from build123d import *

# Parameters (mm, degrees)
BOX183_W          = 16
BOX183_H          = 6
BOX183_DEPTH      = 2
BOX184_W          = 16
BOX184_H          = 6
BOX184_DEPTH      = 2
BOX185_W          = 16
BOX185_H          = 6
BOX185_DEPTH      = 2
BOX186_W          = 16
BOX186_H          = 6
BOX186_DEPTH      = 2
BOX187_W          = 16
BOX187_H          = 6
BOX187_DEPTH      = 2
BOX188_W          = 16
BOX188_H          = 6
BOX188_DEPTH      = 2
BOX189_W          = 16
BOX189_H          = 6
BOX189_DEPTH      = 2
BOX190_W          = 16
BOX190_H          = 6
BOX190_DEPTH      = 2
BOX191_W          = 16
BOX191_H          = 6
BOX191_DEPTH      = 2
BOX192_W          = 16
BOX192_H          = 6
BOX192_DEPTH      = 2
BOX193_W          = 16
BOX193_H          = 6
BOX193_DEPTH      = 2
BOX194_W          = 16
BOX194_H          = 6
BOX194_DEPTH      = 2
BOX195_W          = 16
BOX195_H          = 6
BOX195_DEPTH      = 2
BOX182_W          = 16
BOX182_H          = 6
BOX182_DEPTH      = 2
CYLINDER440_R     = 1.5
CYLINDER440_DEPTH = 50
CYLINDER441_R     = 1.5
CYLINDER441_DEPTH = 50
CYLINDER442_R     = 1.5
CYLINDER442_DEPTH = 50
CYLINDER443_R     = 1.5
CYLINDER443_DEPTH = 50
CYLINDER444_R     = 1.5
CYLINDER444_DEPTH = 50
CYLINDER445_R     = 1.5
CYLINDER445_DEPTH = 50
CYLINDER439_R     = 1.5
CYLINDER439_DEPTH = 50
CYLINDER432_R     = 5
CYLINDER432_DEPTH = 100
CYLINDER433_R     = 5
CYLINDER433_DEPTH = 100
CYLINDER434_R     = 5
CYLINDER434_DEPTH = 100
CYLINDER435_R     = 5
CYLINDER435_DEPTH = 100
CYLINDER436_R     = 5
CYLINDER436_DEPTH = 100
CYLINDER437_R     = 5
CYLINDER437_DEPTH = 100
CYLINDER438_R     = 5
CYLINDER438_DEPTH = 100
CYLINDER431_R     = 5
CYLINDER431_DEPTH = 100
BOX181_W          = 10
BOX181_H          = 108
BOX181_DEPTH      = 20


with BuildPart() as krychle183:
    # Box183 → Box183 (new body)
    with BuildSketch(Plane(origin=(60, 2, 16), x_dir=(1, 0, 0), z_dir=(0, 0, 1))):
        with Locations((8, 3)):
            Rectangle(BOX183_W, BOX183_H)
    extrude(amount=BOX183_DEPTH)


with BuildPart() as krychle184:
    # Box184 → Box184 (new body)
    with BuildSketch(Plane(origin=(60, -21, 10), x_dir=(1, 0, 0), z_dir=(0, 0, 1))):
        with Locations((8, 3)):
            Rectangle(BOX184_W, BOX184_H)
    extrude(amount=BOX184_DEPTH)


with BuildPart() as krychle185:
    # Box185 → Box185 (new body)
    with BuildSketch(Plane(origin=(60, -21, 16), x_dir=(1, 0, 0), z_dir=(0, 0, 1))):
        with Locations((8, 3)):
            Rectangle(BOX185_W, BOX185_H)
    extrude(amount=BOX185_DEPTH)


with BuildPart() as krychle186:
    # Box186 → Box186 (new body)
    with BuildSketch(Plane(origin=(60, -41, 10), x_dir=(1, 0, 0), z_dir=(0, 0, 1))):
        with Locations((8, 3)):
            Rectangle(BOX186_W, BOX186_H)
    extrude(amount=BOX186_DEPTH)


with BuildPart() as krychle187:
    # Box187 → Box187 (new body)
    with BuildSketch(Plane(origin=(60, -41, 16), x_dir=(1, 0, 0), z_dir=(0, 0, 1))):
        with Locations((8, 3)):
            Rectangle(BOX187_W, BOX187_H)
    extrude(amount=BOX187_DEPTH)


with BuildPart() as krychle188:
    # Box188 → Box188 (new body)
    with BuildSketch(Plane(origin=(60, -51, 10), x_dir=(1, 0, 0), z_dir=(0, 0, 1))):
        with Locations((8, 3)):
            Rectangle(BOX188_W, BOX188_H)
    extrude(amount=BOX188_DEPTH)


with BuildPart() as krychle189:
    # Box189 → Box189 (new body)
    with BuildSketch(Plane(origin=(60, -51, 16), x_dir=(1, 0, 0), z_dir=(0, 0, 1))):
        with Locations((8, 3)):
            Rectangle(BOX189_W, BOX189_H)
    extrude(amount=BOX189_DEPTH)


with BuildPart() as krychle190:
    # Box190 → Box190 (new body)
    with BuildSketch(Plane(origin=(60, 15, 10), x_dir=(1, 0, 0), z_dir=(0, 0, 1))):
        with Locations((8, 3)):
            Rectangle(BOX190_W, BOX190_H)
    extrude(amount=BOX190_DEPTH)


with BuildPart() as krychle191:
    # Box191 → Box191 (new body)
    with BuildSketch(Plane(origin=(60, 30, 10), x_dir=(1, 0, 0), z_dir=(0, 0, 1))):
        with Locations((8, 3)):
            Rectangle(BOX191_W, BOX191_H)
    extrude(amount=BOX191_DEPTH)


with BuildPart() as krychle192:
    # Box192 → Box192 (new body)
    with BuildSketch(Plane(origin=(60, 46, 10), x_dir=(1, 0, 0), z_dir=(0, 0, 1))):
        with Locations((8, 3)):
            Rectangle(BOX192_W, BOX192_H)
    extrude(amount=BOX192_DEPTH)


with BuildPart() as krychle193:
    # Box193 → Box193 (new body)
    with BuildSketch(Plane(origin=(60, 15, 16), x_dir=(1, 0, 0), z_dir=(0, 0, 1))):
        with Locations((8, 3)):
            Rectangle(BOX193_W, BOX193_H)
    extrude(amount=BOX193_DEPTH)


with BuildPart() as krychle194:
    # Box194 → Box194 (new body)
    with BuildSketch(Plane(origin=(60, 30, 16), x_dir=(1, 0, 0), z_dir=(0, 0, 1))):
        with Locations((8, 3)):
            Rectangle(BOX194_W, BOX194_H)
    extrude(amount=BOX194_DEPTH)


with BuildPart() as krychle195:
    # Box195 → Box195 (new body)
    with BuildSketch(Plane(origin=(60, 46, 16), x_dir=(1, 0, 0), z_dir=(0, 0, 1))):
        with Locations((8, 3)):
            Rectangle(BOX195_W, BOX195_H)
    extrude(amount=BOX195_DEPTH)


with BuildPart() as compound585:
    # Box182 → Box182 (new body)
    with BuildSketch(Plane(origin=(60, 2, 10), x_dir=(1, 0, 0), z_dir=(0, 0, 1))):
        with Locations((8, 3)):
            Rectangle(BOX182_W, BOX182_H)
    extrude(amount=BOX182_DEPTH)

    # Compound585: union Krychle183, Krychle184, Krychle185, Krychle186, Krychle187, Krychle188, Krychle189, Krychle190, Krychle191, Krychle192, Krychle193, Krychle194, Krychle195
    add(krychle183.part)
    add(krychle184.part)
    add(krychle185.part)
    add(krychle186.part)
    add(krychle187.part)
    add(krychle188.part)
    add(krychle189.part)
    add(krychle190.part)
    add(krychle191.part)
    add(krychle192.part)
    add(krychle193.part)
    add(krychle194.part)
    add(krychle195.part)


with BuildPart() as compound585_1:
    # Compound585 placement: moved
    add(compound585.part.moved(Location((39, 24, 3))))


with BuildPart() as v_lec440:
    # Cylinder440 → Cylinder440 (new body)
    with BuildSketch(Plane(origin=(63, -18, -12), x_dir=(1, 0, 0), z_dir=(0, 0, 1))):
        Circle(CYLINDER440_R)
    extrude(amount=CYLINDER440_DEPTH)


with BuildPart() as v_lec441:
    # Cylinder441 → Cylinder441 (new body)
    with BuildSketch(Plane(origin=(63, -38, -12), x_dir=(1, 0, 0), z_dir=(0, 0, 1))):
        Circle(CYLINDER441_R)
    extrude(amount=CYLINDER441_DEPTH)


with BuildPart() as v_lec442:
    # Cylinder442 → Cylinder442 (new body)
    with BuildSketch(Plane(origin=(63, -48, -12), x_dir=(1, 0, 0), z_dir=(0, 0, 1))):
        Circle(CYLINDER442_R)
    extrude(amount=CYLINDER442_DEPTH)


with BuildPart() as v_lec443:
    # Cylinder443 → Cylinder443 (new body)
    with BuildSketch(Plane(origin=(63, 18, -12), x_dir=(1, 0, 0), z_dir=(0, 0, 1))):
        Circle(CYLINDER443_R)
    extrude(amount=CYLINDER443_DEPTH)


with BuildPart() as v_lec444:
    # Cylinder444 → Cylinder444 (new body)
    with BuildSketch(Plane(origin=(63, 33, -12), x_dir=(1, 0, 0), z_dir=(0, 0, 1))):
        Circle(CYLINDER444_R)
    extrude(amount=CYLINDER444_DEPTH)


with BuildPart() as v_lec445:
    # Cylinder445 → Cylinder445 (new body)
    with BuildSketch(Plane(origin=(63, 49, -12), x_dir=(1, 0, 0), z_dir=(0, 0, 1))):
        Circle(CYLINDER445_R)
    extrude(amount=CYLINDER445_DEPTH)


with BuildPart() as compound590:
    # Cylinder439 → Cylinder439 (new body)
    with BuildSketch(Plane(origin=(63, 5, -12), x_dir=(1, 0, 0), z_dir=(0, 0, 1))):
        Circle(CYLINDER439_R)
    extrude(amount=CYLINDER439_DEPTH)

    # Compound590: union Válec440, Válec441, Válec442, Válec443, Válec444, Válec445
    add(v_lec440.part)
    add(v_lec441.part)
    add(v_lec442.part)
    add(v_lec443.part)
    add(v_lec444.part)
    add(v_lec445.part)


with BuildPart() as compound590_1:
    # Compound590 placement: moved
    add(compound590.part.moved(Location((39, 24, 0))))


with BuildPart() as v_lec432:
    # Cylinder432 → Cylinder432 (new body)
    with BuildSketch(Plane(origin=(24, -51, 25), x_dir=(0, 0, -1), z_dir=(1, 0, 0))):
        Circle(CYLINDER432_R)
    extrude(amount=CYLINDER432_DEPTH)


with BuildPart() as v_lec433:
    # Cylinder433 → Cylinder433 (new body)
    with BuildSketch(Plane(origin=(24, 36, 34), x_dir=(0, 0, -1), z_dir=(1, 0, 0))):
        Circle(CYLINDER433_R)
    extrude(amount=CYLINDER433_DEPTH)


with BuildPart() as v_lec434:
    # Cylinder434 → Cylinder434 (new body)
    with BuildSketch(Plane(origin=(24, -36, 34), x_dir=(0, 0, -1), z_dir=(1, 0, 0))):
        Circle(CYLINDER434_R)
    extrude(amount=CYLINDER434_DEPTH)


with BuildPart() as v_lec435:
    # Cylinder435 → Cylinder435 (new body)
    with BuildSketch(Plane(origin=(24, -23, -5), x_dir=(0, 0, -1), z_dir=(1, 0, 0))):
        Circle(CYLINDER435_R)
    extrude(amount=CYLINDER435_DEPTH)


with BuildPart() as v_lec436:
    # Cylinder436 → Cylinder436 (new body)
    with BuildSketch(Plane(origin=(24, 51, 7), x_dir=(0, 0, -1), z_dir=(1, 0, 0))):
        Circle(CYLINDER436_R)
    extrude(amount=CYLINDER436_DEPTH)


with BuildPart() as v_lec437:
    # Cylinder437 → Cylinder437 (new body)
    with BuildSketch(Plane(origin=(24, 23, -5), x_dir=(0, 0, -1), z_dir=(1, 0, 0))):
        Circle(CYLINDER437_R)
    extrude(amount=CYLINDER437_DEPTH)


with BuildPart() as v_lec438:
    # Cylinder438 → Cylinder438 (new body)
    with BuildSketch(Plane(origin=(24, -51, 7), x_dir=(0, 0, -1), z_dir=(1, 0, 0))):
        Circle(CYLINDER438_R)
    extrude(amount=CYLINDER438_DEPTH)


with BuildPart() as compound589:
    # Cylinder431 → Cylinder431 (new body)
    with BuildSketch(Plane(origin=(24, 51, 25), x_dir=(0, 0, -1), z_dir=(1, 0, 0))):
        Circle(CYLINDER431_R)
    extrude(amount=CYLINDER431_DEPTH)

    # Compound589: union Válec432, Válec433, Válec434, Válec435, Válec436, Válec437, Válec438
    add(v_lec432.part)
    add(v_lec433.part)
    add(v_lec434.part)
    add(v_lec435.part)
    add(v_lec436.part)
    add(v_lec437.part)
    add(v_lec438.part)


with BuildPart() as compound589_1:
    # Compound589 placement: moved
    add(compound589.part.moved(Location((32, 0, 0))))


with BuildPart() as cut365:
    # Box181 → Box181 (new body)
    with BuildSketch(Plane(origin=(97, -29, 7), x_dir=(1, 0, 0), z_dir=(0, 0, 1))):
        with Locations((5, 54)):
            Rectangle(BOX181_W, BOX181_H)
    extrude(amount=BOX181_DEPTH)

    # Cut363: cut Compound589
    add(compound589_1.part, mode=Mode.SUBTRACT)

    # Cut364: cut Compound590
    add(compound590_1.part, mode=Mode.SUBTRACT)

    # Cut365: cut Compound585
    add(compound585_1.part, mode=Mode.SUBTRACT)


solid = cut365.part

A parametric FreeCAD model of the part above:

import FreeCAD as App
import Part
import Sketcher
Q = App.Units.Quantity

doc = App.newDocument("Part")
body = doc.addObject("PartDesign::Body", "Body")

sketch1 = body.newObject("Sketcher::SketchObject", "Sketch")
sketch1.AttachmentSupport = (doc.getObject("XY_Plane"), [""])
sketch1.MapMode = "FlatFace"
sketch1.AttachmentOffset = App.Placement(App.Vector(0, 0, 16), App.Rotation())
sketch1.addGeometry([
    Part.LineSegment(App.Vector(60, 8, 0), App.Vector(60, 2, 0)),
    Part.LineSegment(App.Vector(60, 2, 0), App.Vector(76, 2, 0)),
    Part.LineSegment(App.Vector(76, 2, 0), App.Vector(76, 8, 0)),
    Part.LineSegment(App.Vector(76, 8, 0), App.Vector(60, 8, 0)),
], False)
sketch1.addConstraint([
    Sketcher.Constraint("Coincident", 0, 2, 1, 1),
    Sketcher.Constraint("Coincident", 1, 2, 2, 1),
    Sketcher.Constraint("Coincident", 2, 2, 3, 1),
    Sketcher.Constraint("Coincident", 3, 2, 0, 1),
    Sketcher.Constraint("Vertical", 0),
    Sketcher.Constraint("Horizontal", 1),
    Sketcher.Constraint("Vertical", 2),
    Sketcher.Constraint("Horizontal", 3),
    Sketcher.Constraint("DistanceX", 1, 1, 1, 2, Q("16 mm")),
    Sketcher.Constraint("DistanceY", 0, 2, 0, 1, Q("6 mm")),
    Sketcher.Constraint("DistanceX", -1, 1, 0, 2, Q("60 mm")),
    Sketcher.Constraint("DistanceY", -1, 1, 0, 2, Q("2 mm")),
])
pad1 = body.newObject("PartDesign::Pad", "Pad")
pad1.Profile = sketch1
pad1.Length = 2
body2 = doc.addObject("PartDesign::Body", "Body001")

sketch2 = body2.newObject("Sketcher::SketchObject", "Sketch001")
sketch2.AttachmentSupport = (doc.getObject("XY_Plane001"), [""])
sketch2.MapMode = "FlatFace"
sketch2.AttachmentOffset = App.Placement(App.Vector(0, 0, 10), App.Rotation())
sketch2.addGeometry([
    Part.LineSegment(App.Vector(60, -15, 0), App.Vector(60, -21, 0)),
    Part.LineSegment(App.Vector(60, -21, 0), App.Vector(76, -21, 0)),
    Part.LineSegment(App.Vector(76, -21, 0), App.Vector(76, -15, 0)),
    Part.LineSegment(App.Vector(76, -15, 0), App.Vector(60, -15, 0)),
], False)
sketch2.addConstraint([
    Sketcher.Constraint("Coincident", 0, 2, 1, 1),
    Sketcher.Constraint("Coincident", 1, 2, 2, 1),
    Sketcher.Constraint("Coincident", 2, 2, 3, 1),
    Sketcher.Constraint("Coincident", 3, 2, 0, 1),
    Sketcher.Constraint("Vertical", 0),
    Sketcher.Constraint("Horizontal", 1),
    Sketcher.Constraint("Vertical", 2),
    Sketcher.Constraint("Horizontal", 3),
    Sketcher.Constraint("DistanceX", 1, 1, 1, 2, Q("16 mm")),
    Sketcher.Constraint("DistanceY", 0, 2, 0, 1, Q("6 mm")),
    Sketcher.Constraint("DistanceX", -1, 1, 0, 2, Q("60 mm")),
    Sketcher.Constraint("DistanceY", 0, 2, -1, 1, Q("21 mm")),
])
pad2 = body2.newObject("PartDesign::Pad", "Pad001")
pad2.Profile = sketch2
pad2.Length = 2
body3 = doc.addObject("PartDesign::Body", "Body002")

sketch3 = body3.newObject("Sketcher::SketchObject", "Sketch002")
sketch3.AttachmentSupport = (doc.getObject("XY_Plane002"), [""])
sketch3.MapMode = "FlatFace"
sketch3.AttachmentOffset = App.Placement(App.Vector(0, 0, 16), App.Rotation())
sketch3.addGeometry([
    Part.LineSegment(App.Vector(60, -15, 0), App.Vector(60, -21, 0)),
    Part.LineSegment(App.Vector(60, -21, 0), App.Vector(76, -21, 0)),
    Part.LineSegment(App.Vector(76, -21, 0), App.Vector(76, -15, 0)),
    Part.LineSegment(App.Vector(76, -15, 0), App.Vector(60, -15, 0)),
], False)
sketch3.addConstraint([
    Sketcher.Constraint("Coincident", 0, 2, 1, 1),
    Sketcher.Constraint("Coincident", 1, 2, 2, 1),
    Sketcher.Constraint("Coincident", 2, 2, 3, 1),
    Sketcher.Constraint("Coincident", 3, 2, 0, 1),
    Sketcher.Constraint("Vertical", 0),
    Sketcher.Constraint("Horizontal", 1),
    Sketcher.Constraint("Vertical", 2),
    Sketcher.Constraint("Horizontal", 3),
    Sketcher.Constraint("DistanceX", 1, 1, 1, 2, Q("16 mm")),
    Sketcher.Constraint("DistanceY", 0, 2, 0, 1, Q("6 mm")),
    Sketcher.Constraint("DistanceX", -1, 1, 0, 2, Q("60 mm")),
    Sketcher.Constraint("DistanceY", 0, 2, -1, 1, Q("21 mm")),
])
pad3 = body3.newObject("PartDesign::Pad", "Pad002")
pad3.Profile = sketch3
pad3.Length = 2
body4 = doc.addObject("PartDesign::Body", "Body003")

sketch4 = body4.newObject("Sketcher::SketchObject", "Sketch003")
sketch4.AttachmentSupport = (doc.getObject("XY_Plane003"), [""])
sketch4.MapMode = "FlatFace"
sketch4.AttachmentOffset = App.Placement(App.Vector(0, 0, 10), App.Rotation())
sketch4.addGeometry([
    Part.LineSegment(App.Vector(60, -35, 0), App.Vector(60, -41, 0)),
    Part.LineSegment(App.Vector(60, -41, 0), App.Vector(76, -41, 0)),
    Part.LineSegment(App.Vector(76, -41, 0), App.Vector(76, -35, 0)),
    Part.LineSegment(App.Vector(76, -35, 0), App.Vector(60, -35, 0)),
], False)
sketch4.addConstraint([
    Sketcher.Constraint("Coincident", 0, 2, 1, 1),
    Sketcher.Constraint("Coincident", 1, 2, 2, 1),
    Sketcher.Constraint("Coincident", 2, 2, 3, 1),
    Sketcher.Constraint("Coincident", 3, 2, 0, 1),
    Sketcher.Constraint("Vertical", 0),
    Sketcher.Constraint("Horizontal", 1),
    Sketcher.Constraint("Vertical", 2),
    Sketcher.Constraint("Horizontal", 3),
    Sketcher.Constraint("DistanceX", 1, 1, 1, 2, Q("16 mm")),
    Sketcher.Constraint("DistanceY", 0, 2, 0, 1, Q("6 mm")),
    Sketcher.Constraint("DistanceX", -1, 1, 0, 2, Q("60 mm")),
    Sketcher.Constraint("DistanceY", 0, 2, -1, 1, Q("41 mm")),
])
pad4 = body4.newObject("PartDesign::Pad", "Pad003")
pad4.Profile = sketch4
pad4.Length = 2
body5 = doc.addObject("PartDesign::Body", "Body004")

sketch5 = body5.newObject("Sketcher::SketchObject", "Sketch004")
sketch5.AttachmentSupport = (doc.getObject("XY_Plane004"), [""])
sketch5.MapMode = "FlatFace"
sketch5.AttachmentOffset = App.Placement(App.Vector(0, 0, 16), App.Rotation())
sketch5.addGeometry([
    Part.LineSegment(App.Vector(60, -35, 0), App.Vector(60, -41, 0)),
    Part.LineSegment(App.Vector(60, -41, 0), App.Vector(76, -41, 0)),
    Part.LineSegment(App.Vector(76, -41, 0), App.Vector(76, -35, 0)),
    Part.LineSegment(App.Vector(76, -35, 0), App.Vector(60, -35, 0)),
], False)
sketch5.addConstraint([
    Sketcher.Constraint("Coincident", 0, 2, 1, 1),
    Sketcher.Constraint("Coincident", 1, 2, 2, 1),
    Sketcher.Constraint("Coincident", 2, 2, 3, 1),
    Sketcher.Constraint("Coincident", 3, 2, 0, 1),
    Sketcher.Constraint("Vertical", 0),
    Sketcher.Constraint("Horizontal", 1),
    Sketcher.Constraint("Vertical", 2),
    Sketcher.Constraint("Horizontal", 3),
    Sketcher.Constraint("DistanceX", 1, 1, 1, 2, Q("16 mm")),
    Sketcher.Constraint("DistanceY", 0, 2, 0, 1, Q("6 mm")),
    Sketcher.Constraint("DistanceX", -1, 1, 0, 2, Q("60 mm")),
    Sketcher.Constraint("DistanceY", 0, 2, -1, 1, Q("41 mm")),
])
pad5 = body5.newObject("PartDesign::Pad", "Pad004")
pad5.Profile = sketch5
pad5.Length = 2
body6 = doc.addObject("PartDesign::Body", "Body005")

sketch6 = body6.newObject("Sketcher::SketchObject", "Sketch005")
sketch6.AttachmentSupport = (doc.getObject("XY_Plane005"), [""])
sketch6.MapMode = "FlatFace"
sketch6.AttachmentOffset = App.Placement(App.Vector(0, 0, 10), App.Rotation())
sketch6.addGeometry([
    Part.LineSegment(App.Vector(60, -45, 0), App.Vector(60, -51, 0)),
    Part.LineSegment(App.Vector(60, -51, 0), App.Vector(76, -51, 0)),
    Part.LineSegment(App.Vector(76, -51, 0), App.Vector(76, -45, 0)),
    Part.LineSegment(App.Vector(76, -45, 0), App.Vector(60, -45, 0)),
], False)
sketch6.addConstraint([
    Sketcher.Constraint("Coincident", 0, 2, 1, 1),
    Sketcher.Constraint("Coincident", 1, 2, 2, 1),
    Sketcher.Constraint("Coincident", 2, 2, 3, 1),
    Sketcher.Constraint("Coincident", 3, 2, 0, 1),
    Sketcher.Constraint("Vertical", 0),
    Sketcher.Constraint("Horizontal", 1),
    Sketcher.Constraint("Vertical", 2),
    Sketcher.Constraint("Horizontal", 3),
    Sketcher.Constraint("DistanceX", 1, 1, 1, 2, Q("16 mm")),
    Sketcher.Constraint("DistanceY", 0, 2, 0, 1, Q("6 mm")),
    Sketcher.Constraint("DistanceX", -1, 1, 0, 2, Q("60 mm")),
    Sketcher.Constraint("DistanceY", 0, 2, -1, 1, Q("51 mm")),
])
pad6 = body6.newObject("PartDesign::Pad", "Pad005")
pad6.Profile = sketch6
pad6.Length = 2
body7 = doc.addObject("PartDesign::Body", "Body006")

sketch7 = body7.newObject("Sketcher::SketchObject", "Sketch006")
sketch7.AttachmentSupport = (doc.getObject("XY_Plane006"), [""])
sketch7.MapMode = "FlatFace"
sketch7.AttachmentOffset = App.Placement(App.Vector(0, 0, 16), App.Rotation())
sketch7.addGeometry([
    Part.LineSegment(App.Vector(60, -45, 0), App.Vector(60, -51, 0)),
    Part.LineSegment(App.Vector(60, -51, 0), App.Vector(76, -51, 0)),
    Part.LineSegment(App.Vector(76, -51, 0), App.Vector(76, -45, 0)),
    Part.LineSegment(App.Vector(76, -45, 0), App.Vector(60, -45, 0)),
], False)
sketch7.addConstraint([
    Sketcher.Constraint("Coincident", 0, 2, 1, 1),
    Sketcher.Constraint("Coincident", 1, 2, 2, 1),
    Sketcher.Constraint("Coincident", 2, 2, 3, 1),
    Sketcher.Constraint("Coincident", 3, 2, 0, 1),
    Sketcher.Constraint("Vertical", 0),
    Sketcher.Constraint("Horizontal", 1),
    Sketcher.Constraint("Vertical", 2),
    Sketcher.Constraint("Horizontal", 3),
    Sketcher.Constraint("DistanceX", 1, 1, 1, 2, Q("16 mm")),
    Sketcher.Constraint("DistanceY", 0, 2, 0, 1, Q("6 mm")),
    Sketcher.Constraint("DistanceX", -1, 1, 0, 2, Q("60 mm")),
    Sketcher.Constraint("DistanceY", 0, 2, -1, 1, Q("51 mm")),
])
pad7 = body7.newObject("PartDesign::Pad", "Pad006")
pad7.Profile = sketch7
pad7.Length = 2
body8 = doc.addObject("PartDesign::Body", "Body007")

sketch8 = body8.newObject("Sketcher::SketchObject", "Sketch007")
sketch8.AttachmentSupport = (doc.getObject("XY_Plane007"), [""])
sketch8.MapMode = "FlatFace"
sketch8.AttachmentOffset = App.Placement(App.Vector(0, 0, 10), App.Rotation())
sketch8.addGeometry([
    Part.LineSegment(App.Vector(60, 21, 0), App.Vector(60, 15, 0)),
    Part.LineSegment(App.Vector(60, 15, 0), App.Vector(76, 15, 0)),
    Part.LineSegment(App.Vector(76, 15, 0), App.Vector(76, 21, 0)),
    Part.LineSegment(App.Vector(76, 21, 0), App.Vector(60, 21, 0)),
], False)
sketch8.addConstraint([
    Sketcher.Constraint("Coincident", 0, 2, 1, 1),
    Sketcher.Constraint("Coincident", 1, 2, 2, 1),
    Sketcher.Constraint("Coincident", 2, 2, 3, 1),
    Sketcher.Constraint("Coincident", 3, 2, 0, 1),
    Sketcher.Constraint("Vertical", 0),
    Sketcher.Constraint("Horizontal", 1),
    Sketcher.Constraint("Vertical", 2),
    Sketcher.Constraint("Horizontal", 3),
    Sketcher.Constraint("DistanceX", 1, 1, 1, 2, Q("16 mm")),
    Sketcher.Constraint("DistanceY", 0, 2, 0, 1, Q("6 mm")),
    Sketcher.Constraint("DistanceX", -1, 1, 0, 2, Q("60 mm")),
    Sketcher.Constraint("DistanceY", -1, 1, 0, 2, Q("15 mm")),
])
pad8 = body8.newObject("PartDesign::Pad", "Pad007")
pad8.Profile = sketch8
pad8.Length = 2
body9 = doc.addObject("PartDesign::Body", "Body008")

sketch9 = body9.newObject("Sketcher::SketchObject", "Sketch008")
sketch9.AttachmentSupport = (doc.getObject("XY_Plane008"), [""])
sketch9.MapMode = "FlatFace"
sketch9.AttachmentOffset = App.Placement(App.Vector(0, 0, 10), App.Rotation())
sketch9.addGeometry([
    Part.LineSegment(App.Vector(60, 36, 0), App.Vector(60, 30, 0)),
    Part.LineSegment(App.Vector(60, 30, 0), App.Vector(76, 30, 0)),
    Part.LineSegment(App.Vector(76, 30, 0), App.Vector(76, 36, 0)),
    Part.LineSegment(App.Vector(76, 36, 0), App.Vector(60, 36, 0)),
], False)
sketch9.addConstraint([
    Sketcher.Constraint("Coincident", 0, 2, 1, 1),
    Sketcher.Constraint("Coincident", 1, 2, 2, 1),
    Sketcher.Constraint("Coincident", 2, 2, 3, 1),
    Sketcher.Constraint("Coincident", 3, 2, 0, 1),
    Sketcher.Constraint("Vertical", 0),
    Sketcher.Constraint("Horizontal", 1),
    Sketcher.Constraint("Vertical", 2),
    Sketcher.Constraint("Horizontal", 3),
    Sketcher.Constraint("DistanceX", 1, 1, 1, 2, Q("16 mm")),
    Sketcher.Constraint("DistanceY", 0, 2, 0, 1, Q("6 mm")),
    Sketcher.Constraint("DistanceX", -1, 1, 0, 2, Q("60 mm")),
    Sketcher.Constraint("DistanceY", -1, 1, 0, 2, Q("30 mm")),
])
pad9 = body9.newObject("PartDesign::Pad", "Pad008")
pad9.Profile = sketch9
pad9.Length = 2
body10 = doc.addObject("PartDesign::Body", "Body009")

sketch10 = body10.newObject("Sketcher::SketchObject", "Sketch009")
sketch10.AttachmentSupport = (doc.getObject("XY_Plane009"), [""])
sketch10.MapMode = "FlatFace"
sketch10.AttachmentOffset = App.Placement(App.Vector(0, 0, 10), App.Rotation())
sketch10.addGeometry([
    Part.LineSegment(App.Vector(60, 52, 0), App.Vector(60, 46, 0)),
    Part.LineSegment(App.Vector(60, 46, 0), App.Vector(76, 46, 0)),
    Part.LineSegment(App.Vector(76, 46, 0), App.Vector(76, 52, 0)),
    Part.LineSegment(App.Vector(76, 52, 0), App.Vector(60, 52, 0)),
], False)
sketch10.addConstraint([
    Sketcher.Constraint("Coincident", 0, 2, 1, 1),
    Sketcher.Constraint("Coincident", 1, 2, 2, 1),
    Sketcher.Constraint("Coincident", 2, 2, 3, 1),
    Sketcher.Constraint("Coincident", 3, 2, 0, 1),
    Sketcher.Constraint("Vertical", 0),
    Sketcher.Constraint("Horizontal", 1),
    Sketcher.Constraint("Vertical", 2),
    Sketcher.Constraint("Horizontal", 3),
    Sketcher.Constraint("DistanceX", 1, 1, 1, 2, Q("16 mm")),
    Sketcher.Constraint("DistanceY", 0, 2, 0, 1, Q("6 mm")),
    Sketcher.Constraint("DistanceX", -1, 1, 0, 2, Q("60 mm")),
    Sketcher.Constraint("DistanceY", -1, 1, 0, 2, Q("46 mm")),
])
pad10 = body10.newObject("PartDesign::Pad", "Pad009")
pad10.Profile = sketch10
pad10.Length = 2
body11 = doc.addObject("PartDesign::Body", "Body010")

sketch11 = body11.newObject("Sketcher::SketchObject", "Sketch010")
sketch11.AttachmentSupport = (doc.getObject("XY_Plane010"), [""])
sketch11.MapMode = "FlatFace"
sketch11.AttachmentOffset = App.Placement(App.Vector(0, 0, 16), App.Rotation())
sketch11.addGeometry([
    Part.LineSegment(App.Vector(60, 21, 0), App.Vector(60, 15, 0)),
    Part.LineSegment(App.Vector(60, 15, 0), App.Vector(76, 15, 0)),
    Part.LineSegment(App.Vector(76, 15, 0), App.Vector(76, 21, 0)),
    Part.LineSegment(App.Vector(76, 21, 0), App.Vector(60, 21, 0)),
], False)
sketch11.addConstraint([
    Sketcher.Constraint("Coincident", 0, 2, 1, 1),
    Sketcher.Constraint("Coincident", 1, 2, 2, 1),
    Sketcher.Constraint("Coincident", 2, 2, 3, 1),
    Sketcher.Constraint("Coincident", 3, 2, 0, 1),
    Sketcher.Constraint("Vertical", 0),
    Sketcher.Constraint("Horizontal", 1),
    Sketcher.Constraint("Vertical", 2),
    Sketcher.Constraint("Horizontal", 3),
    Sketcher.Constraint("DistanceX", 1, 1, 1, 2, Q("16 mm")),
    Sketcher.Constraint("DistanceY", 0, 2, 0, 1, Q("6 mm")),
    Sketcher.Constraint("DistanceX", -1, 1, 0, 2, Q("60 mm")),
    Sketcher.Constraint("DistanceY", -1, 1, 0, 2, Q("15 mm")),
])
pad11 = body11.newObject("PartDesign::Pad", "Pad010")
pad11.Profile = sketch11
pad11.Length = 2
body12 = doc.addObject("PartDesign::Body", "Body011")

sketch12 = body12.newObject("Sketcher::SketchObject", "Sketch011")
sketch12.AttachmentSupport = (doc.getObject("XY_Plane011"), [""])
sketch12.MapMode = "FlatFace"
sketch12.AttachmentOffset = App.Placement(App.Vector(0, 0, 16), App.Rotation())
sketch12.addGeometry([
    Part.LineSegment(App.Vector(60, 36, 0), App.Vector(60, 30, 0)),
    Part.LineSegment(App.Vector(60, 30, 0), App.Vector(76, 30, 0)),
    Part.LineSegment(App.Vector(76, 30, 0), App.Vector(76, 36, 0)),
    Part.LineSegment(App.Vector(76, 36, 0), App.Vector(60, 36, 0)),
], False)
sketch12.addConstraint([
    Sketcher.Constraint("Coincident", 0, 2, 1, 1),
    Sketcher.Constraint("Coincident", 1, 2, 2, 1),
    Sketcher.Constraint("Coincident", 2, 2, 3, 1),
    Sketcher.Constraint("Coincident", 3, 2, 0, 1),
    Sketcher.Constraint("Vertical", 0),
    Sketcher.Constraint("Horizontal", 1),
    Sketcher.Constraint("Vertical", 2),
    Sketcher.Constraint("Horizontal", 3),
    Sketcher.Constraint("DistanceX", 1, 1, 1, 2, Q("16 mm")),
    Sketcher.Constraint("DistanceY", 0, 2, 0, 1, Q("6 mm")),
    Sketcher.Constraint("DistanceX", -1, 1, 0, 2, Q("60 mm")),
    Sketcher.Constraint("DistanceY", -1, 1, 0, 2, Q("30 mm")),
])
pad12 = body12.newObject("PartDesign::Pad", "Pad011")
pad12.Profile = sketch12
pad12.Length = 2
body13 = doc.addObject("PartDesign::Body", "Body012")

sketch13 = body13.newObject("Sketcher::SketchObject", "Sketch012")
sketch13.AttachmentSupport = (doc.getObject("XY_Plane012"), [""])
sketch13.MapMode = "FlatFace"
sketch13.AttachmentOffset = App.Placement(App.Vector(0, 0, 16), App.Rotation())
sketch13.addGeometry([
    Part.LineSegment(App.Vector(60, 52, 0), App.Vector(60, 46, 0)),
    Part.LineSegment(App.Vector(60, 46, 0), App.Vector(76, 46, 0)),
    Part.LineSegment(App.Vector(76, 46, 0), App.Vector(76, 52, 0)),
    Part.LineSegment(App.Vector(76, 52, 0), App.Vector(60, 52, 0)),
], False)
sketch13.addConstraint([
    Sketcher.Constraint("Coincident", 0, 2, 1, 1),
    Sketcher.Constraint("Coincident", 1, 2, 2, 1),
    Sketcher.Constraint("Coincident", 2, 2, 3, 1),
    Sketcher.Constraint("Coincident", 3, 2, 0, 1),
    Sketcher.Constraint("Vertical", 0),
    Sketcher.Constraint("Horizontal", 1),
    Sketcher.Constraint("Vertical", 2),
    Sketcher.Constraint("Horizontal", 3),
    Sketcher.Constraint("DistanceX", 1, 1, 1, 2, Q("16 mm")),
    Sketcher.Constraint("DistanceY", 0, 2, 0, 1, Q("6 mm")),
    Sketcher.Constraint("DistanceX", -1, 1, 0, 2, Q("60 mm")),
    Sketcher.Constraint("DistanceY", -1, 1, 0, 2, Q("46 mm")),
])
pad13 = body13.newObject("PartDesign::Pad", "Pad012")
pad13.Profile = sketch13
pad13.Length = 2
body14 = doc.addObject("PartDesign::Body", "Body013")
body14.AllowCompound = True

sketch14 = body14.newObject("Sketcher::SketchObject", "Sketch013")
sketch14.AttachmentSupport = (doc.getObject("XY_Plane013"), [""])
sketch14.MapMode = "FlatFace"
sketch14.AttachmentOffset = App.Placement(App.Vector(0, 0, 10), App.Rotation())
sketch14.addGeometry([
    Part.LineSegment(App.Vector(60, 8, 0), App.Vector(60, 2, 0)),
    Part.LineSegment(App.Vector(60, 2, 0), App.Vector(76, 2, 0)),
    Part.LineSegment(App.Vector(76, 2, 0), App.Vector(76, 8, 0)),
    Part.LineSegment(App.Vector(76, 8, 0), App.Vector(60, 8, 0)),
], False)
sketch14.addConstraint([
    Sketcher.Constraint("Coincident", 0, 2, 1, 1),
    Sketcher.Constraint("Coincident", 1, 2, 2, 1),
    Sketcher.Constraint("Coincident", 2, 2, 3, 1),
    Sketcher.Constraint("Coincident", 3, 2, 0, 1),
    Sketcher.Constraint("Vertical", 0),
    Sketcher.Constraint("Horizontal", 1),
    Sketcher.Constraint("Vertical", 2),
    Sketcher.Constraint("Horizontal", 3),
    Sketcher.Constraint("DistanceX", 1, 1, 1, 2, Q("16 mm")),
    Sketcher.Constraint("DistanceY", 0, 2, 0, 1, Q("6 mm")),
    Sketcher.Constraint("DistanceX", -1, 1, 0, 2, Q("60 mm")),
    Sketcher.Constraint("DistanceY", -1, 1, 0, 2, Q("2 mm")),
])
pad14 = body14.newObject("PartDesign::Pad", "Pad013")
pad14.Profile = sketch14
pad14.Length = 2
doc.recompute()

boolean = body14.newObject("PartDesign::Boolean", "Boolean")
boolean.Type = "Fuse"
boolean.addObjects([body])
doc.recompute()

boolean2 = body14.newObject("PartDesign::Boolean", "Boolean001")
boolean2.Type = "Fuse"
boolean2.addObjects([body2])
doc.recompute()

boolean3 = body14.newObject("PartDesign::Boolean", "Boolean002")
boolean3.Type = "Fuse"
boolean3.addObjects([body3])
doc.recompute()

boolean4 = body14.newObject("PartDesign::Boolean", "Boolean003")
boolean4.Type = "Fuse"
boolean4.addObjects([body4])
doc.recompute()

boolean5 = body14.newObject("PartDesign::Boolean", "Boolean004")
boolean5.Type = "Fuse"
boolean5.addObjects([body5])
doc.recompute()

boolean6 = body14.newObject("PartDesign::Boolean", "Boolean005")
boolean6.Type = "Fuse"
boolean6.addObjects([body6])
doc.recompute()

boolean7 = body14.newObject("PartDesign::Boolean", "Boolean006")
boolean7.Type = "Fuse"
boolean7.addObjects([body7])
doc.recompute()

boolean8 = body14.newObject("PartDesign::Boolean", "Boolean007")
boolean8.Type = "Fuse"
boolean8.addObjects([body8])
doc.recompute()

boolean9 = body14.newObject("PartDesign::Boolean", "Boolean008")
boolean9.Type = "Fuse"
boolean9.addObjects([body9])
doc.recompute()

boolean10 = body14.newObject("PartDesign::Boolean", "Boolean009")
boolean10.Type = "Fuse"
boolean10.addObjects([body10])
doc.recompute()

boolean11 = body14.newObject("PartDesign::Boolean", "Boolean010")
boolean11.Type = "Fuse"
boolean11.addObjects([body11])
doc.recompute()

boolean12 = body14.newObject("PartDesign::Boolean", "Boolean011")
boolean12.Type = "Fuse"
boolean12.addObjects([body12])
doc.recompute()

boolean13 = body14.newObject("PartDesign::Boolean", "Boolean012")
boolean13.Type = "Fuse"
boolean13.addObjects([body13])
body15 = doc.addObject("PartDesign::Body", "Body014")
body15.AllowCompound = True
doc.recompute()

body14.Placement = App.Placement(App.Vector(39, 24, 3), App.Rotation(App.Vector(0, 0, 1), 0))
boolean14 = body15.newObject("PartDesign::Boolean", "Boolean013")
boolean14.Type = "Fuse"
boolean14.addObjects([body14])
body16 = doc.addObject("PartDesign::Body", "Body015")

sketch15 = body16.newObject("Sketcher::SketchObject", "Sketch014")
sketch15.AttachmentSupport = (doc.getObject("XY_Plane015"), [""])
sketch15.MapMode = "FlatFace"
sketch15.AttachmentOffset = App.Placement(App.Vector(0, 0, -12), App.Rotation())
sketch15.addGeometry(Part.Circle(App.Vector(63, -18, 0), App.Vector(0, 0, 1), 1.5), False)
sketch15.addConstraint([
    Sketcher.Constraint("Diameter", 0, Q("3 mm")),
    Sketcher.Constraint("DistanceX", -1, 1, 0, 3, Q("63 mm")),
    Sketcher.Constraint("DistanceY", 0, 3, -1, 1, Q("18 mm")),
])
pad15 = body16.newObject("PartDesign::Pad", "Pad014")
pad15.Profile = sketch15
pad15.Length = 50
body17 = doc.addObject("PartDesign::Body", "Body016")

sketch16 = body17.newObject("Sketcher::SketchObject", "Sketch015")
sketch16.AttachmentSupport = (doc.getObject("XY_Plane016"), [""])
sketch16.MapMode = "FlatFace"
sketch16.AttachmentOffset = App.Placement(App.Vector(0, 0, -12), App.Rotation())
sketch16.addGeometry(Part.Circle(App.Vector(63, -38, 0), App.Vector(0, 0, 1), 1.5), False)
sketch16.addConstraint([
    Sketcher.Constraint("Diameter", 0, Q("3 mm")),
    Sketcher.Constraint("DistanceX", -1, 1, 0, 3, Q("63 mm")),
    Sketcher.Constraint("DistanceY", 0, 3, -1, 1, Q("38 mm")),
])
pad16 = body17.newObject("PartDesign::Pad", "Pad015")
pad16.Profile = sketch16
pad16.Length = 50
body18 = doc.addObject("PartDesign::Body", "Body017")

sketch17 = body18.newObject("Sketcher::SketchObject", "Sketch016")
sketch17.AttachmentSupport = (doc.getObject("XY_Plane017"), [""])
sketch17.MapMode = "FlatFace"
sketch17.AttachmentOffset = App.Placement(App.Vector(0, 0, -12), App.Rotation())
sketch17.addGeometry(Part.Circle(App.Vector(63, -48, 0), App.Vector(0, 0, 1), 1.5), False)
sketch17.addConstraint([
    Sketcher.Constraint("Diameter", 0, Q("3 mm")),
    Sketcher.Constraint("DistanceX", -1, 1, 0, 3, Q("63 mm")),
    Sketcher.Constraint("DistanceY", 0, 3, -1, 1, Q("48 mm")),
])
pad17 = body18.newObject("PartDesign::Pad", "Pad016")
pad17.Profile = sketch17
pad17.Length = 50
body19 = doc.addObject("PartDesign::Body", "Body018")

sketch18 = body19.newObject("Sketcher::SketchObject", "Sketch017")
sketch18.AttachmentSupport = (doc.getObject("XY_Plane018"), [""])
sketch18.MapMode = "FlatFace"
sketch18.AttachmentOffset = App.Placement(App.Vector(0, 0, -12), App.Rotation())
sketch18.addGeometry(Part.Circle(App.Vector(63, 18, 0), App.Vector(0, 0, 1), 1.5), False)
sketch18.addConstraint([
    Sketcher.Constraint("Diameter", 0, Q("3 mm")),
    Sketcher.Constraint("DistanceX", -1, 1, 0, 3, Q("63 mm")),
    Sketcher.Constraint("DistanceY", -1, 1, 0, 3, Q("18 mm")),
])
pad18 = body19.newObject("PartDesign::Pad", "Pad017")
pad18.Profile = sketch18
pad18.Length = 50
body20 = doc.addObject("PartDesign::Body", "Body019")

sketch19 = body20.newObject("Sketcher::SketchObject", "Sketch018")
sketch19.AttachmentSupport = (doc.getObject("XY_Plane019"), [""])
sketch19.MapMode = "FlatFace"
sketch19.AttachmentOffset = App.Placement(App.Vector(0, 0, -12), App.Rotation())
sketch19.addGeometry(Part.Circle(App.Vector(63, 33, 0), App.Vector(0, 0, 1), 1.5), False)
sketch19.addConstraint([
    Sketcher.Constraint("Diameter", 0, Q("3 mm")),
    Sketcher.Constraint("DistanceX", -1, 1, 0, 3, Q("63 mm")),
    Sketcher.Constraint("DistanceY", -1, 1, 0, 3, Q("33 mm")),
])
pad19 = body20.newObject("PartDesign::Pad", "Pad018")
pad19.Profile = sketch19
pad19.Length = 50
body21 = doc.addObject("PartDesign::Body", "Body020")

sketch20 = body21.newObject("Sketcher::SketchObject", "Sketch019")
sketch20.AttachmentSupport = (doc.getObject("XY_Plane020"), [""])
sketch20.MapMode = "FlatFace"
sketch20.AttachmentOffset = App.Placement(App.Vector(0, 0, -12), App.Rotation())
sketch20.addGeometry(Part.Circle(App.Vector(63, 49, 0), App.Vector(0, 0, 1), 1.5), False)
sketch20.addConstraint([
    Sketcher.Constraint("Diameter", 0, Q("3 mm")),
    Sketcher.Constraint("DistanceX", -1, 1, 0, 3, Q("63 mm")),
    Sketcher.Constraint("DistanceY", -1, 1, 0, 3, Q("49 mm")),
])
pad20 = body21.newObject("PartDesign::Pad", "Pad019")
pad20.Profile = sketch20
pad20.Length = 50
body22 = doc.addObject("PartDesign::Body", "Body021")
body22.AllowCompound = True

sketch21 = body22.newObject("Sketcher::SketchObject", "Sketch020")
sketch21.AttachmentSupport = (doc.getObject("XY_Plane021"), [""])
sketch21.MapMode = "FlatFace"
sketch21.AttachmentOffset = App.Placement(App.Vector(0, 0, -12), App.Rotation())
sketch21.addGeometry(Part.Circle(App.Vector(63, 5, 0), App.Vector(0, 0, 1), 1.5), False)
sketch21.addConstraint([
    Sketcher.Constraint("Diameter", 0, Q("3 mm")),
    Sketcher.Constraint("DistanceX", -1, 1, 0, 3, Q("63 mm")),
    Sketcher.Constraint("DistanceY", -1, 1, 0, 3, Q("5 mm")),
])
pad21 = body22.newObject("PartDesign::Pad", "Pad020")
pad21.Profile = sketch21
pad21.Length = 50
doc.recompute()

boolean15 = body22.newObject("PartDesign::Boolean", "Boolean014")
boolean15.Type = "Fuse"
boolean15.addObjects([body16])
doc.recompute()

boolean16 = body22.newObject("PartDesign::Boolean", "Boolean015")
boolean16.Type = "Fuse"
boolean16.addObjects([body17])
doc.recompute()

boolean17 = body22.newObject("PartDesign::Boolean", "Boolean016")
boolean17.Type = "Fuse"
boolean17.addObjects([body18])
doc.recompute()

boolean18 = body22.newObject("PartDesign::Boolean", "Boolean017")
boolean18.Type = "Fuse"
boolean18.addObjects([body19])
doc.recompute()

boolean19 = body22.newObject("PartDesign::Boolean", "Boolean018")
boolean19.Type = "Fuse"
boolean19.addObjects([body20])
doc.recompute()

boolean20 = body22.newObject("PartDesign::Boolean", "Boolean019")
boolean20.Type = "Fuse"
boolean20.addObjects([body21])
body23 = doc.addObject("PartDesign::Body", "Body022")
body23.AllowCompound = True
doc.recompute()

body22.Placement = App.Placement(App.Vector(39, 24, 0), App.Rotation(App.Vector(0, 0, 1), 0))
boolean21 = body23.newObject("PartDesign::Boolean", "Boolean020")
boolean21.Type = "Fuse"
boolean21.addObjects([body22])
body24 = doc.addObject("PartDesign::Body", "Body023")

sketch22 = body24.newObject("Sketcher::SketchObject", "Sketch021")
sketch22.AttachmentSupport = (doc.getObject("YZ_Plane023"), [""])
sketch22.MapMode = "FlatFace"
sketch22.AttachmentOffset = App.Placement(App.Vector(0, 0, 24), App.Rotation())
sketch22.addGeometry(Part.Circle(App.Vector(-51, 25, 0), App.Vector(0, 0, 1), 5), False)
sketch22.addConstraint([
    Sketcher.Constraint("Diameter", 0, Q("10 mm")),
    Sketcher.Constraint("DistanceX", 0, 3, -1, 1, Q("51 mm")),
    Sketcher.Constraint("DistanceY", -1, 1, 0, 3, Q("25 mm")),
])
pad22 = body24.newObject("PartDesign::Pad", "Pad021")
pad22.Profile = sketch22
pad22.Length = 100
body25 = doc.addObject("PartDesign::Body", "Body024")

sketch23 = body25.newObject("Sketcher::SketchObject", "Sketch022")
sketch23.AttachmentSupport = (doc.getObject("YZ_Plane024"), [""])
sketch23.MapMode = "FlatFace"
sketch23.AttachmentOffset = App.Placement(App.Vector(0, 0, 24), App.Rotation())
sketch23.addGeometry(Part.Circle(App.Vector(36, 34, 0), App.Vector(0, 0, 1), 5), False)
sketch23.addConstraint([
    Sketcher.Constraint("Diameter", 0, Q("10 mm")),
    Sketcher.Constraint("DistanceX", -1, 1, 0, 3, Q("36 mm")),
    Sketcher.Constraint("DistanceY", -1, 1, 0, 3, Q("34 mm")),
])
pad23 = body25.newObject("PartDesign::Pad", "Pad022")
pad23.Profile = sketch23
pad23.Length = 100
body26 = doc.addObject("PartDesign::Body", "Body025")

sketch24 = body26.newObject("Sketcher::SketchObject", "Sketch023")
sketch24.AttachmentSupport = (doc.getObject("YZ_Plane025"), [""])
sketch24.MapMode = "FlatFace"
sketch24.AttachmentOffset = App.Placement(App.Vector(0, 0, 24), App.Rotation())
sketch24.addGeometry(Part.Circle(App.Vector(-36, 34, 0), App.Vector(0, 0, 1), 5), False)
sketch24.addConstraint([
    Sketcher.Constraint("Diameter", 0, Q("10 mm")),
    Sketcher.Constraint("DistanceX", 0, 3, -1, 1, Q("36 mm")),
    Sketcher.Constraint("DistanceY", -1, 1, 0, 3, Q("34 mm")),
])
pad24 = body26.newObject("PartDesign::Pad", "Pad023")
pad24.Profile = sketch24
pad24.Length = 100
body27 = doc.addObject("PartDesign::Body", "Body026")

sketch25 = body27.newObject("Sketcher::SketchObject", "Sketch024")
sketch25.AttachmentSupport = (doc.getObject("YZ_Plane026"), [""])
sketch25.MapMode = "FlatFace"
sketch25.AttachmentOffset = App.Placement(App.Vector(0, 0, 24), App.Rotation())
sketch25.addGeometry(Part.Circle(App.Vector(-23, -5, 0), App.Vector(0, 0, 1), 5), False)
sketch25.addConstraint([
    Sketcher.Constraint("Diameter", 0, Q("10 mm")),
    Sketcher.Constraint("DistanceX", 0, 3, -1, 1, Q("23 mm")),
    Sketcher.Constraint("DistanceY", 0, 3, -1, 1, Q("5 mm")),
])
pad25 = body27.newObject("PartDesign::Pad", "Pad024")
pad25.Profile = sketch25
pad25.Length = 100
body28 = doc.addObject("PartDesign::Body", "Body027")

sketch26 = body28.newObject("Sketcher::SketchObject", "Sketch025")
sketch26.AttachmentSupport = (doc.getObject("YZ_Plane027"), [""])
sketch26.MapMode = "FlatFace"
sketch26.AttachmentOffset = App.Placement(App.Vector(0, 0, 24), App.Rotation())
sketch26.addGeometry(Part.Circle(App.Vector(51, 7, 0), App.Vector(0, 0, 1), 5), False)
sketch26.addConstraint([
    Sketcher.Constraint("Diameter", 0, Q("10 mm")),
    Sketcher.Constraint("DistanceX", -1, 1, 0, 3, Q("51 mm")),
    Sketcher.Constraint("DistanceY", -1, 1, 0, 3, Q("7 mm")),
])
pad26 = body28.newObject("PartDesign::Pad", "Pad025")
pad26.Profile = sketch26
pad26.Length = 100
body29 = doc.addObject("PartDesign::Body", "Body028")

sketch27 = body29.newObject("Sketcher::SketchObject", "Sketch026")
sketch27.AttachmentSupport = (doc.getObject("YZ_Plane028"), [""])
sketch27.MapMode = "FlatFace"
sketch27.AttachmentOffset = App.Placement(App.Vector(0, 0, 24), App.Rotation())
sketch27.addGeometry(Part.Circle(App.Vector(23, -5, 0), App.Vector(0, 0, 1), 5), False)
sketch27.addConstraint([
    Sketcher.Constraint("Diameter", 0, Q("10 mm")),
    Sketcher.Constraint("DistanceX", -1, 1, 0, 3, Q("23 mm")),
    Sketcher.Constraint("DistanceY", 0, 3, -1, 1, Q("5 mm")),
])
pad27 = body29.newObject("PartDesign::Pad", "Pad026")
pad27.Profile = sketch27
pad27.Length = 100
body30 = doc.addObject("PartDesign::Body", "Body029")

sketch28 = body30.newObject("Sketcher::SketchObject", "Sketch027")
sketch28.AttachmentSupport = (doc.getObject("YZ_Plane029"), [""])
sketch28.MapMode = "FlatFace"
sketch28.AttachmentOffset = App.Placement(App.Vector(0, 0, 24), App.Rotation())
sketch28.addGeometry(Part.Circle(App.Vector(-51, 7, 0), App.Vector(0, 0, 1), 5), False)
sketch28.addConstraint([
    Sketcher.Constraint("Diameter", 0, Q("10 mm")),
    Sketcher.Constraint("DistanceX", 0, 3, -1, 1, Q("51 mm")),
    Sketcher.Constraint("DistanceY", -1, 1, 0, 3, Q("7 mm")),
])
pad28 = body30.newObject("PartDesign::Pad", "Pad027")
pad28.Profile = sketch28
pad28.Length = 100
body31 = doc.addObject("PartDesign::Body", "Body030")
body31.AllowCompound = True

sketch29 = body31.newObject("Sketcher::SketchObject", "Sketch028")
sketch29.AttachmentSupport = (doc.getObject("YZ_Plane030"), [""])
sketch29.MapMode = "FlatFace"
sketch29.AttachmentOffset = App.Placement(App.Vector(0, 0, 24), App.Rotation())
sketch29.addGeometry(Part.Circle(App.Vector(51, 25, 0), App.Vector(0, 0, 1), 5), False)
sketch29.addConstraint([
    Sketcher.Constraint("Diameter", 0, Q("10 mm")),
    Sketcher.Constraint("DistanceX", -1, 1, 0, 3, Q("51 mm")),
    Sketcher.Constraint("DistanceY", -1, 1, 0, 3, Q("25 mm")),
])
pad29 = body31.newObject("PartDesign::Pad", "Pad028")
pad29.Profile = sketch29
pad29.Length = 100
doc.recompute()

boolean22 = body31.newObject("PartDesign::Boolean", "Boolean021")
boolean22.Type = "Fuse"
boolean22.addObjects([body24])
doc.recompute()

boolean23 = body31.newObject("PartDesign::Boolean", "Boolean022")
boolean23.Type = "Fuse"
boolean23.addObjects([body25])
doc.recompute()

boolean24 = body31.newObject("PartDesign::Boolean", "Boolean023")
boolean24.Type = "Fuse"
boolean24.addObjects([body26])
doc.recompute()

boolean25 = body31.newObject("PartDesign::Boolean", "Boolean024")
boolean25.Type = "Fuse"
boolean25.addObjects([body27])
doc.recompute()

boolean26 = body31.newObject("PartDesign::Boolean", "Boolean025")
boolean26.Type = "Fuse"
boolean26.addObjects([body28])
doc.recompute()

boolean27 = body31.newObject("PartDesign::Boolean", "Boolean026")
boolean27.Type = "Fuse"
boolean27.addObjects([body29])
doc.recompute()

boolean28 = body31.newObject("PartDesign::Boolean", "Boolean027")
boolean28.Type = "Fuse"
boolean28.addObjects([body30])
body32 = doc.addObject("PartDesign::Body", "Body031")
body32.AllowCompound = True
doc.recompute()

body31.Placement = App.Placement(App.Vector(32, 0, 0), App.Rotation(App.Vector(0, 0, 1), 0))
boolean29 = body32.newObject("PartDesign::Boolean", "Boolean028")
boolean29.Type = "Fuse"
boolean29.addObjects([body31])
body33 = doc.addObject("PartDesign::Body", "Body032")

sketch30 = body33.newObject("Sketcher::SketchObject", "Sketch029")
sketch30.AttachmentSupport = (doc.getObject("XY_Plane032"), [""])
sketch30.MapMode = "FlatFace"
sketch30.AttachmentOffset = App.Placement(App.Vector(0, 0, 7), App.Rotation())
sketch30.addGeometry([
    Part.LineSegment(App.Vector(97, 79, 0), App.Vector(97, -29, 0)),
    Part.LineSegment(App.Vector(97, -29, 0), App.Vector(107, -29, 0)),
    Part.LineSegment(App.Vector(107, -29, 0), App.Vector(107, 79, 0)),
    Part.LineSegment(App.Vector(107, 79, 0), App.Vector(97, 79, 0)),
], False)
sketch30.addConstraint([
    Sketcher.Constraint("Coincident", 0, 2, 1, 1),
    Sketcher.Constraint("Coincident", 1, 2, 2, 1),
    Sketcher.Constraint("Coincident", 2, 2, 3, 1),
    Sketcher.Constraint("Coincident", 3, 2, 0, 1),
    Sketcher.Constraint("Vertical", 0),
    Sketcher.Constraint("Horizontal", 1),
    Sketcher.Constraint("Vertical", 2),
    Sketcher.Constraint("Horizontal", 3),
    Sketcher.Constraint("DistanceX", 1, 1, 1, 2, Q("10 mm")),
    Sketcher.Constraint("DistanceY", 0, 2, 0, 1, Q("108 mm")),
    Sketcher.Constraint("DistanceX", -1, 1, 0, 2, Q("97 mm")),
    Sketcher.Constraint("DistanceY", 0, 2, -1, 1, Q("29 mm")),
])
pad30 = body33.newObject("PartDesign::Pad", "Pad029")
pad30.Profile = sketch30
pad30.Length = 20
doc.recompute()

boolean30 = body33.newObject("PartDesign::Boolean", "Boolean029")
boolean30.Type = "Cut"
boolean30.addObjects([body32])
doc.recompute()

boolean31 = body33.newObject("PartDesign::Boolean", "Boolean030")
boolean31.Type = "Cut"
boolean31.addObjects([body23])
doc.recompute()

boolean32 = body33.newObject("PartDesign::Boolean", "Boolean031")
boolean32.Type = "Cut"
boolean32.addObjects([body15])

doc.recompute()
